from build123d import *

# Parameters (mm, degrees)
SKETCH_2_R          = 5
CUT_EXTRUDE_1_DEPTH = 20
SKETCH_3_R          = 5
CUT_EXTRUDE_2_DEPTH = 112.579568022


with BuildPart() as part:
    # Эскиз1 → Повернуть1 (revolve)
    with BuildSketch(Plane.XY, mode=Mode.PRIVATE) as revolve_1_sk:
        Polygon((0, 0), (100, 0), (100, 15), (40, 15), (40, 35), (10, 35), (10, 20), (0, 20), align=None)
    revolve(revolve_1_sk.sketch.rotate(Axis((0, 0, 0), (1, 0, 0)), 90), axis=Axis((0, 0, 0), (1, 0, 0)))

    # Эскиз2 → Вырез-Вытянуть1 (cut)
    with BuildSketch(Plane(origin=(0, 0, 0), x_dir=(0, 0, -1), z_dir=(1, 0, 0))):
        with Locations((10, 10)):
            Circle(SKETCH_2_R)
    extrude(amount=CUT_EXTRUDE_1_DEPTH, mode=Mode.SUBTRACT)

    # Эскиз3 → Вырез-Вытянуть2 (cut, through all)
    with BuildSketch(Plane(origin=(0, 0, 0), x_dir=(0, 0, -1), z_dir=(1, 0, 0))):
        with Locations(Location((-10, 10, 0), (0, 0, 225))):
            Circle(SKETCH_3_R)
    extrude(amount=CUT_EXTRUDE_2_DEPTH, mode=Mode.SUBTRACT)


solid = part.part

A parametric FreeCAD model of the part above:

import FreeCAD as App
import Part
import Sketcher

V = App.Vector
Q = App.Units.Quantity


def add_polygon(sketch, points):
    """Adds a closed chain of lines whose ends are joined by coincident constraints."""
    first, n = sketch.GeometryCount, len(points)
    for a, b in zip(points, points[1:] + points[:1]):
        sketch.addGeometry(Part.LineSegment(App.Vector(*a, 0), App.Vector(*b, 0)), False)
    for i in range(n):
        sketch.addConstraint(Sketcher.Constraint("Coincident", first + i, 2, first + (i + 1) % n, 1))

doc = App.newDocument("Part")
body = doc.addObject("PartDesign::Body", "Body")

sketch1 = doc.addObject("Sketcher::SketchObject", "Sketch")
body.addObject(sketch1)
sketch1.AttachmentSupport = (doc.XY_Plane, [""])
sketch1.MapMode = "FlatFace"
add_polygon(sketch1, [(0, 0), (100, 0), (100, 15), (40, 15), (40, 35), (10, 35), (10, 20), (0, 20)])
sketch1.addConstraint([
    Sketcher.Constraint("Horizontal", 0),
    Sketcher.Constraint("Vertical", 1),
    Sketcher.Constraint("Horizontal", 2),
    Sketcher.Constraint("Vertical", 3),
    Sketcher.Constraint("Horizontal", 4),
    Sketcher.Constraint("Vertical", 5),
    Sketcher.Constraint("Horizontal", 6),
    Sketcher.Constraint("Vertical", 7),
    Sketcher.Constraint("Coincident", 7, 2, -1, 1),
    Sketcher.Constraint("Equal", 1, 5),
    Sketcher.Constraint("DistanceX", 0, 1, 0, 2, Q("100 mm")),
    Sketcher.Constraint("DistanceX", 2, 2, 2, 1, Q("60 mm")),
    Sketcher.Constraint("DistanceX", 4, 2, 4, 1, Q("30 mm")),
    Sketcher.Constraint("DistanceY", 1, 1, 1, 2, Q("15 mm")),
    Sketcher.Constraint("DistanceY", 3, 1, 3, 2, Q("20 mm")),
])
revolution = doc.addObject("PartDesign::Revolution", "Revolution")
body.addObject(revolution)
revolution.Profile = sketch1
revolution.ReferenceAxis = (sketch1, ["H_Axis"])
revolution.Angle = 360

sketch2 = doc.addObject("Sketcher::SketchObject", "Sketch001")
body.addObject(sketch2)
sketch2.AttachmentSupport = (doc.YZ_Plane, [""])
sketch2.MapMode = "FlatFace"
sketch2.addGeometry(Part.Circle(V(10, -10, 0), V(0, 0, 1), 5), False)
sketch2.addConstraint([
    Sketcher.Constraint("Diameter", 0, Q("10 mm")),
    Sketcher.Constraint("DistanceX", -1, 1, 0, 3, Q("10 mm")),
    Sketcher.Constraint("DistanceY", 0, 3, -1, 1, Q("10 mm")),
])
pocket1 = doc.addObject("PartDesign::Pocket", "Pocket")
body.addObject(pocket1)
pocket1.Profile = sketch2
pocket1.Length = 20
pocket1.Reversed = True

sketch3 = doc.addObject("Sketcher::SketchObject", "Sketch002")
body.addObject(sketch3)
sketch3.AttachmentSupport = (doc.YZ_Plane, [""])
sketch3.MapMode = "FlatFace"
sketch3.addGeometry(Part.Circle(V(10, 10, 0), V(0, 0, 1), 5), False)
sketch3.addConstraint([
    Sketcher.Constraint("Diameter", 0, Q("10 mm")),
    Sketcher.Constraint("DistanceX", -1, 1, 0, 3, Q("10 mm")),
    Sketcher.Constraint("DistanceY", -1, 1, 0, 3, Q("10 mm")),
])
pocket2 = doc.addObject("PartDesign::Pocket", "Pocket001")
body.addObject(pocket2)
pocket2.Profile = sketch3
pocket2.Type = "ThroughAll"
pocket2.Reversed = True

doc.recompute()
